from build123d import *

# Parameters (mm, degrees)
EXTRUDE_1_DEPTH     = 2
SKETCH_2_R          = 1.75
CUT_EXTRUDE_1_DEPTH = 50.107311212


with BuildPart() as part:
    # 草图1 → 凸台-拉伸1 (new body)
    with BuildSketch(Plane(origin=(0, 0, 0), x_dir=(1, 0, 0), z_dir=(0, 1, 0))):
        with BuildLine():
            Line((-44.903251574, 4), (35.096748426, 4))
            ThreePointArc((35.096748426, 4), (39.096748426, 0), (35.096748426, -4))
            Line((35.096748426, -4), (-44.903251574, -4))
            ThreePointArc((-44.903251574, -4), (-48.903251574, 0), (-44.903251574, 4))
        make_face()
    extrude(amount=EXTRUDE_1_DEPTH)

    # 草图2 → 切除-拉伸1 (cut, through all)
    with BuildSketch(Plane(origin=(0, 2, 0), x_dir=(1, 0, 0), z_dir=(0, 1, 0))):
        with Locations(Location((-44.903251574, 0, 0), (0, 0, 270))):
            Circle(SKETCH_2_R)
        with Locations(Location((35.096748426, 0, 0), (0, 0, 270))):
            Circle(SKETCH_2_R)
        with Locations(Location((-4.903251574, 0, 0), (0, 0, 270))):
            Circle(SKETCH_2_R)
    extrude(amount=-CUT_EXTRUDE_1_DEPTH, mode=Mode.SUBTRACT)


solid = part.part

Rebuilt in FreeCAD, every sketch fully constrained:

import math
import FreeCAD as App
import Part
import Sketcher
from FreeCAD import Vector
Q = App.Units.Quantity

doc = App.newDocument("Part")
body = doc.addObject("PartDesign::Body", "Body")

sketch1 = body.newObject("Sketcher::SketchObject", "Sketch")
sketch1.AttachmentSupport = (doc.getObject("XZ_Plane"), [""])
sketch1.MapMode = "FlatFace"
sketch1.addGeometry([
    Part.LineSegment(Vector(35.1, -4, 0), Vector(-44.9, -4, 0)),
    Part.ArcOfCircle(Part.Circle(Vector(-44.9, 0, 0), Vector(0, 0, 1), 4), math.radians(90), math.radians(270)),
    Part.LineSegment(Vector(-44.9, 4, 0), Vector(35.1, 4, 0)),
    Part.ArcOfCircle(Part.Circle(Vector(35.1, 0, 0), Vector(0, 0, 1), 4), math.radians(-90), math.radians(90)),
], False)
sketch1.addConstraint([
    Sketcher.Constraint("Tangent", 0, 2, 1, 2),
    Sketcher.Constraint("Tangent", 1, 1, 2, 1),
    Sketcher.Constraint("Tangent", 2, 2, 3, 2),
    Sketcher.Constraint("Tangent", 3, 1, 0, 1),
    Sketcher.Constraint("Horizontal", 0),
    Sketcher.Constraint("Horizontal", 2),
    Sketcher.Constraint("PointOnObject", 1, 3, -1),
    Sketcher.Constraint("Radius", 1, Q("4 mm")),
    Sketcher.Constraint("DistanceX", 0, 2, 0, 1, Q("80 mm")),
    Sketcher.Constraint("DistanceX", 1, 3, -1, 1, Q("44.903252 mm")),
])
pad1 = body.newObject("PartDesign::Pad", "Pad")
pad1.Profile = sketch1
pad1.Length = 2
pad1.Reversed = True

sketch2 = body.newObject("Sketcher::SketchObject", "Sketch001")
sketch2.AttachmentSupport = (doc.getObject("XZ_Plane"), [""])
sketch2.MapMode = "FlatFace"
sketch2.AttachmentOffset = App.Placement(Vector(0, 0, -2), App.Rotation())
sketch2.addGeometry([
    Part.Circle(Vector(-44.9, 0, 0), Vector(0, 0, 1), 1.8),
    Part.Circle(Vector(35.1, 0, 0), Vector(0, 0, 1), 1.8),
    Part.Circle(Vector(-4.9, 0, 0), Vector(0, 0, 1), 1.8),
], False)
sketch2.addConstraint([
    Sketcher.Constraint("Equal", 0, 1),
    Sketcher.Constraint("Equal", 1, 2),
    Sketcher.Constraint("PointOnObject", 0, 3, -1),
    Sketcher.Constraint("PointOnObject", 1, 3, -1),
    Sketcher.Constraint("PointOnObject", 2, 3, -1),
    Sketcher.Constraint("Diameter", 0, Q("3.5 mm")),
    Sketcher.Constraint("DistanceX", 0, 3, 1, 3, Q("80 mm")),
    Sketcher.Constraint("DistanceX", 0, 3, 2, 3, Q("40 mm")),
    Sketcher.Constraint("DistanceX", 0, 3, -1, 1, Q("44.903252 mm")),
])
pocket1 = body.newObject("PartDesign::Pocket", "Pocket")
pocket1.Profile = sketch2
pocket1.Type = "ThroughAll"
pocket1.Reversed = True

doc.recompute()
